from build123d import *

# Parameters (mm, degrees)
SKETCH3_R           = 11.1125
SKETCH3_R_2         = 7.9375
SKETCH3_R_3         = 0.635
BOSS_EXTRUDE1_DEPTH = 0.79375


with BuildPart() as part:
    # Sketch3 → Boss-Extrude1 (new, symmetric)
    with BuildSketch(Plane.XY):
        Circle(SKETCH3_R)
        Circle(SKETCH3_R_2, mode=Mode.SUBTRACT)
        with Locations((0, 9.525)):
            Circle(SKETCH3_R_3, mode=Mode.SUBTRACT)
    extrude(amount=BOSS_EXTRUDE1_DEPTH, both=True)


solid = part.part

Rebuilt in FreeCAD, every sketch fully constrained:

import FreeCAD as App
import Part
import Sketcher
from FreeCAD import Vector
Q = App.Units.Quantity

doc = App.newDocument("Part")
body = doc.addObject("PartDesign::Body", "Body")

sketch1 = body.newObject("Sketcher::SketchObject", "Sketch")
sketch1.AttachmentSupport = (doc.getObject("XY_Plane"), [""])
sketch1.MapMode = "FlatFace"
sketch1.addGeometry(Part.Circle(Vector(0, 0, 0), Vector(0, 0, 1), 11.1), False)
sketch1.addGeometry(Part.Circle(Vector(0, 0, 0), Vector(0, 0, 1), 7.9), False)
sketch1.addGeometry(Part.Circle(Vector(0, 9.5, 0), Vector(0, 0, 1), 0.6), False)
sketch1.addConstraint(Sketcher.Constraint("Coincident", 0, 3, -1, 1))
sketch1.addConstraint(Sketcher.Constraint("Coincident", 1, 3, -1, 1))
sketch1.addConstraint(Sketcher.Constraint("PointOnObject", 2, 3, -2))
sketch1.addConstraint(Sketcher.Constraint("Diameter", 2, Q("0.05 in")))
sketch1.addConstraint(Sketcher.Constraint("Diameter", 0, Q("0.875 in")))
sketch1.addConstraint(Sketcher.Constraint("Diameter", 1, Q("0.625 in")))
sketch1.addConstraint(Sketcher.Constraint("DistanceY", -1, 1, 2, 3, Q("0.375 in")))
pad1 = body.newObject("PartDesign::Pad", "Pad")
pad1.Profile = sketch1
pad1.Length = Q("0.0625 in")
pad1.Midplane = True

doc.recompute()
